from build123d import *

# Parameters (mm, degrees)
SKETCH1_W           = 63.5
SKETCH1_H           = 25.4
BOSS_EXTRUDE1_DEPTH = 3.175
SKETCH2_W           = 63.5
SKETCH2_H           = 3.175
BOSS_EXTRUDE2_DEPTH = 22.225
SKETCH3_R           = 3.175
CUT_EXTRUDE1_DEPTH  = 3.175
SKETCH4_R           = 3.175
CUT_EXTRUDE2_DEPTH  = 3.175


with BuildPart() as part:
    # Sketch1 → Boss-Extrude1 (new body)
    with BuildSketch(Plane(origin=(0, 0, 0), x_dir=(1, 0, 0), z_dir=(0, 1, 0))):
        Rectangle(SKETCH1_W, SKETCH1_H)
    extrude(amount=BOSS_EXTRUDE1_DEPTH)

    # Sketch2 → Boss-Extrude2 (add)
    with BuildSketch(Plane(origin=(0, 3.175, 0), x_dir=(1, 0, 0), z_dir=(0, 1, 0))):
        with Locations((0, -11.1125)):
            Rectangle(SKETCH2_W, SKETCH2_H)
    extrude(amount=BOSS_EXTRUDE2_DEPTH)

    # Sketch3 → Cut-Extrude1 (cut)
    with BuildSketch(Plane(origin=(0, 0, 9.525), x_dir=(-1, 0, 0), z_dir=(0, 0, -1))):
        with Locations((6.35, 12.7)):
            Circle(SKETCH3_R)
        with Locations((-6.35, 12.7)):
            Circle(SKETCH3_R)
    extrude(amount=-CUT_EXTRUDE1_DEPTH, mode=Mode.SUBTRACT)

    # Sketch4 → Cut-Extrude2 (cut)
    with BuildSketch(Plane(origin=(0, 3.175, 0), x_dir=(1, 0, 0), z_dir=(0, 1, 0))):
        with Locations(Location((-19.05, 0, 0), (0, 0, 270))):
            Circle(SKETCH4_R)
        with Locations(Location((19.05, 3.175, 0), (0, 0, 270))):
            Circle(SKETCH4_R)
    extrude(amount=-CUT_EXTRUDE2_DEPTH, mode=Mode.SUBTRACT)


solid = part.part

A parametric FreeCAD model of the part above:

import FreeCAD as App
import Part
import Sketcher
Q = App.Units.Quantity

doc = App.newDocument("Part")
body = doc.addObject("PartDesign::Body", "Body")

# Sketch on XZ plane
sketch1 = doc.addObject("Sketcher::SketchObject", "Sketch")
body.addObject(sketch1)
sketch1.AttachmentSupport = (doc.XZ_Plane, [""])
sketch1.MapMode = "FlatFace"
sketch1.addGeometry([
    Part.LineSegment(App.Vector(-31.75, -12.7, 0), App.Vector(-31.75, 12.7, 0)),
    Part.LineSegment(App.Vector(-31.75, 12.7, 0), App.Vector(31.75, 12.7, 0)),
    Part.LineSegment(App.Vector(31.75, 12.7, 0), App.Vector(31.75, -12.7, 0)),
    Part.LineSegment(App.Vector(31.75, -12.7, 0), App.Vector(-31.75, -12.7, 0)),
], False)
sketch1.addConstraint([
    Sketcher.Constraint("Coincident", 0, 2, 1, 1),
    Sketcher.Constraint("Coincident", 1, 2, 2, 1),
    Sketcher.Constraint("Coincident", 2, 2, 3, 1),
    Sketcher.Constraint("Coincident", 3, 2, 0, 1),
    Sketcher.Constraint("Vertical", 0),
    Sketcher.Constraint("Horizontal", 1),
    Sketcher.Constraint("Vertical", 2),
    Sketcher.Constraint("Horizontal", 3),
    Sketcher.Constraint("Symmetric", 0, 2, 2, 2, -1, 1),
    Sketcher.Constraint("DistanceY", 0, 1, 0, 2, Q("1 in")),
    Sketcher.Constraint("DistanceX", 1, 1, 1, 2, Q("2.5 in")),
])
pad1 = doc.addObject("PartDesign::Pad", "Pad")
body.addObject(pad1)
pad1.Profile = sketch1
pad1.Length = Q("0.125 in")
pad1.Reversed = True

# Sketch on XZ plane
sketch2 = doc.addObject("Sketcher::SketchObject", "Sketch001")
body.addObject(sketch2)
sketch2.AttachmentSupport = (doc.XZ_Plane, [""])
sketch2.MapMode = "FlatFace"
sketch2.AttachmentOffset = App.Placement(App.Vector(0, 0, -0.125 * 25.4), App.Rotation())
sketch2.addGeometry([
    Part.LineSegment(App.Vector(-31.75, 9.525, 0), App.Vector(-31.75, 12.7, 0)),
    Part.LineSegment(App.Vector(-31.75, 12.7, 0), App.Vector(31.75, 12.7, 0)),
    Part.LineSegment(App.Vector(31.75, 12.7, 0), App.Vector(31.75, 9.525, 0)),
    Part.LineSegment(App.Vector(31.75, 9.525, 0), App.Vector(-31.75, 9.525, 0)),
], False)
sketch2.addConstraint([
    Sketcher.Constraint("Coincident", 0, 2, 1, 1),
    Sketcher.Constraint("Coincident", 1, 2, 2, 1),
    Sketcher.Constraint("Coincident", 2, 2, 3, 1),
    Sketcher.Constraint("Coincident", 3, 2, 0, 1),
    Sketcher.Constraint("Vertical", 0),
    Sketcher.Constraint("Horizontal", 1),
    Sketcher.Constraint("Vertical", 2),
    Sketcher.Constraint("Horizontal", 3),
    Sketcher.Constraint("DistanceX", 1, 1, 1, 2, Q("2.5 in")),
    Sketcher.Constraint("DistanceY", -1, 1, 0, 2, Q("0.5 in")),
    Sketcher.Constraint("DistanceY", 0, 1, 0, 2, Q("0.125 in")),
    Sketcher.Constraint("DistanceX", 0, 2, -1, 1, Q("1.25 in")),
])
pad2 = doc.addObject("PartDesign::Pad", "Pad001")
body.addObject(pad2)
pad2.Profile = sketch2
pad2.Length = Q("0.875 in")
pad2.Reversed = True

# Sketch on XY plane
sketch3 = doc.addObject("Sketcher::SketchObject", "Sketch002")
body.addObject(sketch3)
sketch3.AttachmentSupport = (doc.XY_Plane, [""])
sketch3.MapMode = "FlatFace"
sketch3.AttachmentOffset = App.Placement(App.Vector(0, 0, 0.375 * 25.4), App.Rotation())
sketch3.addGeometry([
    Part.Circle(App.Vector(-6.35, 12.7, 0), App.Vector(0, 0, 1), 3.175),
    Part.Circle(App.Vector(6.35, 12.7, 0), App.Vector(0, 0, 1), 3.175),
], False)
sketch3.addConstraint([
    Sketcher.Constraint("Equal", 0, 1),
    Sketcher.Constraint("Symmetric", 0, 3, 1, 3, -2),
    Sketcher.Constraint("Diameter", 0, Q("0.25 in")),
    Sketcher.Constraint("DistanceY", -1, 1, 0, 3, Q("0.5 in")),
    Sketcher.Constraint("DistanceX", 0, 3, 1, 3, Q("0.5 in")),
])
pocket1 = doc.addObject("PartDesign::Pocket", "Pocket")
body.addObject(pocket1)
pocket1.Profile = sketch3
pocket1.Length = Q("0.125 in")
pocket1.Reversed = True

# Sketch on XZ plane
sketch4 = doc.addObject("Sketcher::SketchObject", "Sketch003")
body.addObject(sketch4)
sketch4.AttachmentSupport = (doc.XZ_Plane, [""])
sketch4.MapMode = "FlatFace"
sketch4.AttachmentOffset = App.Placement(App.Vector(0, 0, -0.125 * 25.4), App.Rotation())
sketch4.addGeometry([
    Part.Circle(App.Vector(-19.05, 0, 0), App.Vector(0, 0, 1), 3.175),
    Part.Circle(App.Vector(19.05, -3.175, 0), App.Vector(0, 0, 1), 3.175),
], False)
sketch4.addConstraint([
    Sketcher.Constraint("Equal", 0, 1),
    Sketcher.Constraint("PointOnObject", 0, 3, -1),
    Sketcher.Constraint("Diameter", 0, Q("0.25 in")),
    Sketcher.Constraint("DistanceX", 0, 3, 1, 3, Q("1.5 in")),
    Sketcher.Constraint("DistanceX", 0, 3, -1, 1, Q("0.75 in")),
    Sketcher.Constraint("DistanceY", 1, 3, -1, 1, Q("0.125 in")),
])
pocket2 = doc.addObject("PartDesign::Pocket", "Pocket001")
body.addObject(pocket2)
pocket2.Profile = sketch4
pocket2.Length = Q("0.125 in")
pocket2.Reversed = True

doc.recompute()
